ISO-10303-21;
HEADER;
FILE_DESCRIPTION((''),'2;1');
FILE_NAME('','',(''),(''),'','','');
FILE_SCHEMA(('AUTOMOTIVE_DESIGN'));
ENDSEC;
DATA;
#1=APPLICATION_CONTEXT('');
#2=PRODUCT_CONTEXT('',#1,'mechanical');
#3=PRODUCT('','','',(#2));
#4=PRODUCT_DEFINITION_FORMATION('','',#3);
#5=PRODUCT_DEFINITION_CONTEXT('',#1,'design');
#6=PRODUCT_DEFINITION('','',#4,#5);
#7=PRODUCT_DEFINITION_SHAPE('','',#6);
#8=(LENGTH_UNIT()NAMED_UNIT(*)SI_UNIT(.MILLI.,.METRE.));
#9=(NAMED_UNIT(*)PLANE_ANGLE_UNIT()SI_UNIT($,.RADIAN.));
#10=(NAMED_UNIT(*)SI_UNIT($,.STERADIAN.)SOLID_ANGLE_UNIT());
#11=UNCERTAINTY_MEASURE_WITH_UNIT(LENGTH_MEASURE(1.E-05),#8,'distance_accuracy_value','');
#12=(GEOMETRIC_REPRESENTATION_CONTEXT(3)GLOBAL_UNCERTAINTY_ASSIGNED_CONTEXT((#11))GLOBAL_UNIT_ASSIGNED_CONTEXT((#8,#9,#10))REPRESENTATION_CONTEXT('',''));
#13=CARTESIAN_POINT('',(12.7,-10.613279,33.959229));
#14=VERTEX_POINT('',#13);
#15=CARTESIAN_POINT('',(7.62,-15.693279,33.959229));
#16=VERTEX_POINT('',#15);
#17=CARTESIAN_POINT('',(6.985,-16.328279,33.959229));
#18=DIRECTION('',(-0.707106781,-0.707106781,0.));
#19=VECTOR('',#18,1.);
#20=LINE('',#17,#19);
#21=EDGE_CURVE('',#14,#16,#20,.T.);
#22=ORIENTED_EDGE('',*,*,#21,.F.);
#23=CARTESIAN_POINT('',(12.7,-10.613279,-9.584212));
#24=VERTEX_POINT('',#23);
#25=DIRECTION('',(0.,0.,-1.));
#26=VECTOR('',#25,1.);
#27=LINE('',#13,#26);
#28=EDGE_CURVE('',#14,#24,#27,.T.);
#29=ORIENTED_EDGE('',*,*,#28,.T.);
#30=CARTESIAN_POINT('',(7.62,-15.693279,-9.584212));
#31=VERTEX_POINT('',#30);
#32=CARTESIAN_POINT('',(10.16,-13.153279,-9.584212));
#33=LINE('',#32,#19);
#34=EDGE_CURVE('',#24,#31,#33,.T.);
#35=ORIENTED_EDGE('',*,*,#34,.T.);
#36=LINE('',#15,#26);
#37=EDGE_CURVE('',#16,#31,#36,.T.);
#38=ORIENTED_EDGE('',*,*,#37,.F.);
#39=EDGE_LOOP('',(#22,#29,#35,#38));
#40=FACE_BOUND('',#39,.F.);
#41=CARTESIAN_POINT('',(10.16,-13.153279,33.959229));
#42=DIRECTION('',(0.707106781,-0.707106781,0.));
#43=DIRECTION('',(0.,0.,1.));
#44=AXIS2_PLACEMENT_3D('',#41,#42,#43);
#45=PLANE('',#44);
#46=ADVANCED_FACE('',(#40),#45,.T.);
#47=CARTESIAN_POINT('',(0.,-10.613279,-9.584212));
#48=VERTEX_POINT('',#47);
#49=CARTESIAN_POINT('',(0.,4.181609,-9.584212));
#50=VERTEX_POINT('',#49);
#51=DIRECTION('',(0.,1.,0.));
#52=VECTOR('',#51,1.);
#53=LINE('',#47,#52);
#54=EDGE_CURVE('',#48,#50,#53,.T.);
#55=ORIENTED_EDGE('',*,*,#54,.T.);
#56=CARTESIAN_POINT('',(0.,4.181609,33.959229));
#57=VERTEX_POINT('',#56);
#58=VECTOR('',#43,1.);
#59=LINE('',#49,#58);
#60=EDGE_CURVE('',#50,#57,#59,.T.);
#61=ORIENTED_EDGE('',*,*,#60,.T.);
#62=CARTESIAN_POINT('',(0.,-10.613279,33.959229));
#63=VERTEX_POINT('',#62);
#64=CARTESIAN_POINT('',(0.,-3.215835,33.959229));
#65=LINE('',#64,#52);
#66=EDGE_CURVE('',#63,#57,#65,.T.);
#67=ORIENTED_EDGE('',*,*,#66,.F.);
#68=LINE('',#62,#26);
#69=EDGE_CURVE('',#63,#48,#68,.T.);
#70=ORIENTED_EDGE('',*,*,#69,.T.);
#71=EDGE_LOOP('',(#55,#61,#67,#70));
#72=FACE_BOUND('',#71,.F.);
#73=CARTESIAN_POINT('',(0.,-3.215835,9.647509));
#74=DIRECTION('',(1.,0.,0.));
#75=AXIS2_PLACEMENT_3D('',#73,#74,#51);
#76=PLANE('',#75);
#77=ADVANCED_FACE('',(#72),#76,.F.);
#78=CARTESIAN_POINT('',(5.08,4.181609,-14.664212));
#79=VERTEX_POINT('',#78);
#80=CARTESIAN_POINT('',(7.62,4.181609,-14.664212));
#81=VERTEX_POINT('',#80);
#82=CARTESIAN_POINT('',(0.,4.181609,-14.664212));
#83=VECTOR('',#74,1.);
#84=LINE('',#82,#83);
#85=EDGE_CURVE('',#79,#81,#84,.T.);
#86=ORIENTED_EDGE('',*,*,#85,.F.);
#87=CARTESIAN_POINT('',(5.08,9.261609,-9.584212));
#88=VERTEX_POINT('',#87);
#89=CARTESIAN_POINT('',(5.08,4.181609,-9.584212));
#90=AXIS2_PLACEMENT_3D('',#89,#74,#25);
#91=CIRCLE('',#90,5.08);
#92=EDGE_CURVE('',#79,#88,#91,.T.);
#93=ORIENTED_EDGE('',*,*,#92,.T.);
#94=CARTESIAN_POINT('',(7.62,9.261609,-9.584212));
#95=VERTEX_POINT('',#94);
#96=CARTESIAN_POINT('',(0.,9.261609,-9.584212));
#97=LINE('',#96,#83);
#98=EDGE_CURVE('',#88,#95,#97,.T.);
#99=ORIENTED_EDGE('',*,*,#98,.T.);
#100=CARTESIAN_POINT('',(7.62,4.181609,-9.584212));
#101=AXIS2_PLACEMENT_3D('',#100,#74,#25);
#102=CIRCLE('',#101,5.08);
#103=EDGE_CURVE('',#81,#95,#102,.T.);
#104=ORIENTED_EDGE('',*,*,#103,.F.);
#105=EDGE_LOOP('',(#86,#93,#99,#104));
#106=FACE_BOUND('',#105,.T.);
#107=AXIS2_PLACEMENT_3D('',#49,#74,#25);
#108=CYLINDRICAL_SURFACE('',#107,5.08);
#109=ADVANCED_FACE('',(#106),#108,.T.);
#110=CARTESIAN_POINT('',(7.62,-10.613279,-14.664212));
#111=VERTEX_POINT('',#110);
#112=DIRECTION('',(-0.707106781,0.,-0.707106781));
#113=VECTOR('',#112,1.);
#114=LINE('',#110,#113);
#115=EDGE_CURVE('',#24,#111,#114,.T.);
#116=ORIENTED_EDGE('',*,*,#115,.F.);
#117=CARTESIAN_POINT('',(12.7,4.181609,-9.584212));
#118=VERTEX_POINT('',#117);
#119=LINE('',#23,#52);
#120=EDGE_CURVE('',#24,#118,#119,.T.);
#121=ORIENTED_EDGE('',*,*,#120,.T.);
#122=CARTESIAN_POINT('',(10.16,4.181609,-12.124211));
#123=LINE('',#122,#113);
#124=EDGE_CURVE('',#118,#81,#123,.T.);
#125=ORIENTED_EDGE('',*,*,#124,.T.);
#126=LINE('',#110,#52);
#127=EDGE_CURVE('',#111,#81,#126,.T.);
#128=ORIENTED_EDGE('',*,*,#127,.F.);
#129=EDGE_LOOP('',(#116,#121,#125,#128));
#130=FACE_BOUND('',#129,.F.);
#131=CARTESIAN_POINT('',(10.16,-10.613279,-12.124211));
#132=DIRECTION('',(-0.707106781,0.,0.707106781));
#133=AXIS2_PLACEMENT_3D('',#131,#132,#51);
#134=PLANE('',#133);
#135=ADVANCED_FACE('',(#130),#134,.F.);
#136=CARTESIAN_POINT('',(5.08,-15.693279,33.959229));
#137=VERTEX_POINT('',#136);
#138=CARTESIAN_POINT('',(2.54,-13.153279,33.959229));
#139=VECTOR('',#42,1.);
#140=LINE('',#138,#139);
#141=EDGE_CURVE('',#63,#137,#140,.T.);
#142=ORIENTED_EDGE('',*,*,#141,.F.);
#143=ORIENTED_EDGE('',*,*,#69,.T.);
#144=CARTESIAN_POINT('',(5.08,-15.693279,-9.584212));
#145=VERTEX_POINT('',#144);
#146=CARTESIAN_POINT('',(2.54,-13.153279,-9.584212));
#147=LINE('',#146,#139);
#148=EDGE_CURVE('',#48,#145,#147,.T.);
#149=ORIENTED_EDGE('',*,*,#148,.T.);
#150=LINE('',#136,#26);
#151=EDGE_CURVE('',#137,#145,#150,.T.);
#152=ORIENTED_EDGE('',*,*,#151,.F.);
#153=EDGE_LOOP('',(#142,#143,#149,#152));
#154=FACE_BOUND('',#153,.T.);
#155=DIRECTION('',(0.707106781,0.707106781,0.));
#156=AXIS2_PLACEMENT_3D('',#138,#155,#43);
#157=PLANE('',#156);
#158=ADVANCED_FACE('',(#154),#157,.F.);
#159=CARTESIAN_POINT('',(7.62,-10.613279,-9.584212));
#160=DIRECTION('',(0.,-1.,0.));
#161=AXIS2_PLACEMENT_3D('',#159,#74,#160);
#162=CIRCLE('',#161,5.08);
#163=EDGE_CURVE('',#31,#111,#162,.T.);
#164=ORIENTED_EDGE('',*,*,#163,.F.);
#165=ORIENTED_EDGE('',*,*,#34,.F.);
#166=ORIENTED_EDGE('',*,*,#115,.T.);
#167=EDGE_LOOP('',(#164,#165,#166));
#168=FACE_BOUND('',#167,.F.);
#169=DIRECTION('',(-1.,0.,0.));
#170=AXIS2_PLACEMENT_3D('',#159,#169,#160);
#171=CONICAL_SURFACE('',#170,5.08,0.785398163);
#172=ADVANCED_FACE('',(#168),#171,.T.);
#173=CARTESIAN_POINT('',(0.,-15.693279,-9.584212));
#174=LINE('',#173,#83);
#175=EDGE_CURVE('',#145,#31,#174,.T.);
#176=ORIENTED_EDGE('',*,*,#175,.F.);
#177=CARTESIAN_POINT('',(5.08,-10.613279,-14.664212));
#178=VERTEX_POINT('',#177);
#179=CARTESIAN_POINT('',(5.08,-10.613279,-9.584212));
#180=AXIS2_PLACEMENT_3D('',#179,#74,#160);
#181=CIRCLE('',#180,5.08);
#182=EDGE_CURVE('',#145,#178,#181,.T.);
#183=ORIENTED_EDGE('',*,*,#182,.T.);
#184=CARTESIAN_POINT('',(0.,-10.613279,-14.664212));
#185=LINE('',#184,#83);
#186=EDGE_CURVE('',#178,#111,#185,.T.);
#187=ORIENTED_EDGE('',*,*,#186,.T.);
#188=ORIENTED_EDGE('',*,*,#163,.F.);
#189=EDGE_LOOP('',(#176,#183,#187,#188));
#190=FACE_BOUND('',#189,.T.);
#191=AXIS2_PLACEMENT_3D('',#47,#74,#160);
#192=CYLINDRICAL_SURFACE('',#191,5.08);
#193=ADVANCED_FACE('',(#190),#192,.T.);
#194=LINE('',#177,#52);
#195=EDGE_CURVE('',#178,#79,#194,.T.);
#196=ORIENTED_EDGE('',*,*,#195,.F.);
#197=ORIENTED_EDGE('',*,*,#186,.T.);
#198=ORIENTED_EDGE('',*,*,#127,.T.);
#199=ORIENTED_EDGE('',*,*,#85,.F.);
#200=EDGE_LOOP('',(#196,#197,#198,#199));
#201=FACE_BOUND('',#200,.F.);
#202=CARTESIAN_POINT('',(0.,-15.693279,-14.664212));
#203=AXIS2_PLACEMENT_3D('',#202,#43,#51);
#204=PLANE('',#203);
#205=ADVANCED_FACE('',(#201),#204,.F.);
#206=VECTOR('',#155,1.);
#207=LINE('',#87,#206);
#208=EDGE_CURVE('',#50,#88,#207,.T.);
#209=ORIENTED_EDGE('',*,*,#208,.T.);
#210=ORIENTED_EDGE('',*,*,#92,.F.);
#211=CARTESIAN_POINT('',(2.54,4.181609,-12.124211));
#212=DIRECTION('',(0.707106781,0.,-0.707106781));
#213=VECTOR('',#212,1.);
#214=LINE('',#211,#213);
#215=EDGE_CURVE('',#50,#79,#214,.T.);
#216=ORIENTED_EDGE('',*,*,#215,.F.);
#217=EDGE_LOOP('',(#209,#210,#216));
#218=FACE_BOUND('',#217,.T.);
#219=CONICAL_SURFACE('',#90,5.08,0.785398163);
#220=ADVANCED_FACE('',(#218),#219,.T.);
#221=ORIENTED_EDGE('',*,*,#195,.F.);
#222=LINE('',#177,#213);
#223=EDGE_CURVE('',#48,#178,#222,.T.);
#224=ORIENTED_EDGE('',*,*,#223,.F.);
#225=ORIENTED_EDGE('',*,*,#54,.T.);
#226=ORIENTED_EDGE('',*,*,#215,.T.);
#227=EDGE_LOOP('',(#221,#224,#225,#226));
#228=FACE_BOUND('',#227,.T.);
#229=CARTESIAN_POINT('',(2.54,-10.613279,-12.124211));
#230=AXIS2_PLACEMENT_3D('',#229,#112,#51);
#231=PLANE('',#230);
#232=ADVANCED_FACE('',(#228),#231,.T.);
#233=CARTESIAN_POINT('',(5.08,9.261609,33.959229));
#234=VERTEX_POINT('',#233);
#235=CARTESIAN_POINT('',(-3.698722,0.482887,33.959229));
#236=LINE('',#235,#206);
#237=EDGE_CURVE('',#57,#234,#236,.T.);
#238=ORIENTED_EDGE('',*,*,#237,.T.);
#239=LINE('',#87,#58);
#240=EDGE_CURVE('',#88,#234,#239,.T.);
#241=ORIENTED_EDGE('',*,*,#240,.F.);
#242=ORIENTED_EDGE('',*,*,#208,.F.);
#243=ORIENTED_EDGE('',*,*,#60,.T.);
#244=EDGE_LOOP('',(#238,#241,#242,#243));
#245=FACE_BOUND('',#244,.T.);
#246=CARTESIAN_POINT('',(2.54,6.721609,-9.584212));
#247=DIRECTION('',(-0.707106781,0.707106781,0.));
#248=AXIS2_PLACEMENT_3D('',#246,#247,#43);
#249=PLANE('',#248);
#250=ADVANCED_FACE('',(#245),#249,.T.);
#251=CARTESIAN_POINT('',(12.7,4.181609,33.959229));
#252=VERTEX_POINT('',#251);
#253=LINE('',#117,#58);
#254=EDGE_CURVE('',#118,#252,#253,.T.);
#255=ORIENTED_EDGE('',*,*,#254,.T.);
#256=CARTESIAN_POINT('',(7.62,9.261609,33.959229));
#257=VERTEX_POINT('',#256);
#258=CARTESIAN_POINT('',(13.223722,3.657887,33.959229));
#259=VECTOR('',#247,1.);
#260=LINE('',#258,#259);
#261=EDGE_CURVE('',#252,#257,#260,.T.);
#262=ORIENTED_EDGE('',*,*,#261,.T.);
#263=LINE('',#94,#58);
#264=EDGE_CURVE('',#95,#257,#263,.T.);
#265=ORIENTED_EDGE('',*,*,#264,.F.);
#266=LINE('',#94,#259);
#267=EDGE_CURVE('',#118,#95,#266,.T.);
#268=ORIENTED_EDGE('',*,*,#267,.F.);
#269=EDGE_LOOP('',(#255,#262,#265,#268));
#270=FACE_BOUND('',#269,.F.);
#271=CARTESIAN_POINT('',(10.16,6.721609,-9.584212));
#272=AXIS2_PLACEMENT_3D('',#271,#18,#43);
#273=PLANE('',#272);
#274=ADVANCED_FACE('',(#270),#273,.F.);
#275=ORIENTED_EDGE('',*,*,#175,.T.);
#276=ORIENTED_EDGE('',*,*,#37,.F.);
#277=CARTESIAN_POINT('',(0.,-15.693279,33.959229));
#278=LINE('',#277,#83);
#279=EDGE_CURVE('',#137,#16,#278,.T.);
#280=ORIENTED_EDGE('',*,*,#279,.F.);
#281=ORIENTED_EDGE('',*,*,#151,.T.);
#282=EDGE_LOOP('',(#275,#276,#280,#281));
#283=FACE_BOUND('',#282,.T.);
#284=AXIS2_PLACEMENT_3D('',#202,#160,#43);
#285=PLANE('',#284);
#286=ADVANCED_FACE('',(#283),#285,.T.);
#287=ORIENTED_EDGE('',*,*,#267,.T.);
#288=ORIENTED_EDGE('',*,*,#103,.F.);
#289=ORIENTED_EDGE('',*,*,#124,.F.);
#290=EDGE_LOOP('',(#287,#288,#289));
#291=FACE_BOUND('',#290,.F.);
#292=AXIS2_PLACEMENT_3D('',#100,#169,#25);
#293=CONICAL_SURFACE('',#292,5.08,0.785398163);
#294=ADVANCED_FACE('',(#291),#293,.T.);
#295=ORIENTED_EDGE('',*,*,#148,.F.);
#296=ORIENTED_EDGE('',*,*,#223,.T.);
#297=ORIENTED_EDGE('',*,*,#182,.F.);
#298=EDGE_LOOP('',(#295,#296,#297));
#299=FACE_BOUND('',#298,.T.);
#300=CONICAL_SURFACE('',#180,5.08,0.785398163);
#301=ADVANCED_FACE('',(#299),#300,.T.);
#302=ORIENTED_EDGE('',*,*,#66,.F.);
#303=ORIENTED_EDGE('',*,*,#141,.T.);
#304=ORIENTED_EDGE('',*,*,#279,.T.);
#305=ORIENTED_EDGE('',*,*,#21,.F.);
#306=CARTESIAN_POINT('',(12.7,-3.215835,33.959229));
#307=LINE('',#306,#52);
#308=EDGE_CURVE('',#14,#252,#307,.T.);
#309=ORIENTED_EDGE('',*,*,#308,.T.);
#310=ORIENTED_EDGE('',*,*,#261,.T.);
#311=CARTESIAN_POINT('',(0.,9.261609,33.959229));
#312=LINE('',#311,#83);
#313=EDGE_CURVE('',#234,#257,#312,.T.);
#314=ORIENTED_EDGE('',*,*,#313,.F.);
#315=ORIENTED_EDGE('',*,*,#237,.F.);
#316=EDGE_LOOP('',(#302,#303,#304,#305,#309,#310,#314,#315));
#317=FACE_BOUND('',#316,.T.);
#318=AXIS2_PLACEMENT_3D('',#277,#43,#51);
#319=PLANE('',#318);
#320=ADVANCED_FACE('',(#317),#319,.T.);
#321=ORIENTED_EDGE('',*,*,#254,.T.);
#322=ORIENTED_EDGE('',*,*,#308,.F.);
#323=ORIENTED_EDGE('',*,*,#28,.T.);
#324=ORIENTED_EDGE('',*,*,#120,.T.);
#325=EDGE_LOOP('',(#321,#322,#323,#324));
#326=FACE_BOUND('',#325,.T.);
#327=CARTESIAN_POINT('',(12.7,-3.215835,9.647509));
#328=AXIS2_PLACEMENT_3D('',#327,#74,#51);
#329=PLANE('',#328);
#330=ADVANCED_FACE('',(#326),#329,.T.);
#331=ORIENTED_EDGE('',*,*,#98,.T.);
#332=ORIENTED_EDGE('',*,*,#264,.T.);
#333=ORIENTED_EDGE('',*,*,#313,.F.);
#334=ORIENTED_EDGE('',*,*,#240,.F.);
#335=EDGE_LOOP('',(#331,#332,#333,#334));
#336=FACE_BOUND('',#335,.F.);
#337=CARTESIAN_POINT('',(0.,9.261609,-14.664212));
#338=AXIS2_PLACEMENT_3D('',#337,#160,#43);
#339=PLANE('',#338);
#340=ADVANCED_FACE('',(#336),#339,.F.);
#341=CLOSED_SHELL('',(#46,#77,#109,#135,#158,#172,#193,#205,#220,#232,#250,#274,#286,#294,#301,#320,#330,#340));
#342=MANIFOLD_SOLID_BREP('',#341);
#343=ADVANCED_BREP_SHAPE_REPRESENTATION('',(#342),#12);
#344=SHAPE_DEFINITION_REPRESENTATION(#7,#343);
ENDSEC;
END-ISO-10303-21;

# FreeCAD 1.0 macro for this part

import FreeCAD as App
import Part
import Sketcher

V = App.Vector
Q = App.Units.Quantity


def edges_at(feature, points):
    """Names of the edges that pass closest to the given points."""
    edges = feature.Shape.Edges
    near = lambda p: min(range(len(edges)), key=lambda i: edges[i].distToShape(Part.Vertex(*p))[0])
    return sorted({f"Edge{near(p) + 1}" for p in points})


def add_polygon(sketch, points):
    """Adds a closed chain of lines whose ends are joined by coincident constraints."""
    first, n = sketch.GeometryCount, len(points)
    for a, b in zip(points, points[1:] + points[:1]):
        sketch.addGeometry(Part.LineSegment(App.Vector(*a, 0), App.Vector(*b, 0)), False)
    for i in range(n):
        sketch.addConstraint(Sketcher.Constraint("Coincident", first + i, 2, first + (i + 1) % n, 1))

doc = App.newDocument("Part")
body = doc.addObject("PartDesign::Body", "Body")

sketch1 = doc.addObject("Sketcher::SketchObject", "Sketch")
body.addObject(sketch1)
sketch1.AttachmentSupport = (doc.YZ_Plane, [""])
sketch1.MapMode = "FlatFace"
add_polygon(sketch1, [(-16, 34), (-16, -15), (9, -15), (9, 34)])
sketch1.addConstraint([
    Sketcher.Constraint("Vertical", 0),
    Sketcher.Constraint("Horizontal", 1),
    Sketcher.Constraint("Vertical", 2),
    Sketcher.Constraint("Horizontal", 3),
    Sketcher.Constraint("DistanceX", 1, 1, 1, 2, Q("24.954888 mm")),
    Sketcher.Constraint("DistanceY", 0, 2, 0, 1, Q("48.623441 mm")),
    Sketcher.Constraint("DistanceX", 0, 2, -1, 1, Q("15.693279 mm")),
    Sketcher.Constraint("DistanceY", 0, 2, -1, 1, Q("14.664212 mm")),
])
pad1 = doc.addObject("PartDesign::Pad", "Pad")
body.addObject(pad1)
pad1.Profile = sketch1
pad1.Length = Q("0.5 in")
doc.recompute()

fillet = doc.addObject("PartDesign::Fillet", "Fillet")
body.addObject(fillet)
fillet.Base = (pad1, edges_at(pad1, [(6.35, -15.693, -14.664), (6.35, 9.262, -14.664)]))
fillet.Radius = Q("0.2 in")
doc.recompute()

chamfer = doc.addObject("PartDesign::Chamfer", "Chamfer")
body.addObject(chamfer)
chamfer.Base = (fillet, edges_at(fillet, [(12.7, -3.216, -14.664), (0, -3.216, -14.664)]))
chamfer.Size = Q("0.2 in")

doc.recompute()
